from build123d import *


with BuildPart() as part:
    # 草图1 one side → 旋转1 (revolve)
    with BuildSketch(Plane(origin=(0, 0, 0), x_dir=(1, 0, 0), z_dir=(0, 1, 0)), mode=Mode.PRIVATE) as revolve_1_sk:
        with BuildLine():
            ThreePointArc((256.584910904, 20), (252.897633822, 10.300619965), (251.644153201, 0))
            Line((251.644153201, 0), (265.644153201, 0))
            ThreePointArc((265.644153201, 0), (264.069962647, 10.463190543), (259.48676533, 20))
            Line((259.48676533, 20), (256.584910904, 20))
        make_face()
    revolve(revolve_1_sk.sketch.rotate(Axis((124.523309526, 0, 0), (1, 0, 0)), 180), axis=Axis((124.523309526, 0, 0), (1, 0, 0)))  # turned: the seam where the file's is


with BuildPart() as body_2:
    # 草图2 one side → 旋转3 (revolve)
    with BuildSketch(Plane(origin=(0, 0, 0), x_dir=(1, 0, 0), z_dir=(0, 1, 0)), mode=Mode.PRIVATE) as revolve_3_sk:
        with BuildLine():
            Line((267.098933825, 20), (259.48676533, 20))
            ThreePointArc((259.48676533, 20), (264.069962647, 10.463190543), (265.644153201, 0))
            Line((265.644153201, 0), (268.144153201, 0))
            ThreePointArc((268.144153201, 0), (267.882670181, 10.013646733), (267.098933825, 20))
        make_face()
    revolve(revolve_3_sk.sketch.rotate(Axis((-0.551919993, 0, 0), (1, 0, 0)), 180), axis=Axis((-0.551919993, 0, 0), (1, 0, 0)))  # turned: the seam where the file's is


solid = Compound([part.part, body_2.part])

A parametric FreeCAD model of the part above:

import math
import FreeCAD as App
import Part
import Sketcher

doc = App.newDocument("Part")
body = doc.addObject("PartDesign::Body", "Body")

sketch1 = body.newObject("Sketcher::SketchObject", "Sketch")
sketch1.AttachmentSupport = (doc.getObject("XZ_Plane"), [""])
sketch1.MapMode = "FlatFace"
sketch1.addGeometry([
    Part.ArcOfCircle(Part.Circle(App.Vector(294.594153, 0, 0), App.Vector(0, 0, 1), 42.95), math.radians(-180), math.radians(-152.247202)),
    Part.LineSegment(App.Vector(251.644153, 0, 0), App.Vector(265.644153, 0, 0)),
    Part.ArcOfCircle(Part.Circle(App.Vector(230.084153, 0, 0), App.Vector(0, 0, 1), 35.56), math.radians(-34.223995), math.radians(0)),
    Part.LineSegment(App.Vector(259.486765, -20, 0), App.Vector(256.584911, -20, 0)),
], False)
sketch1.addConstraint([
    Sketcher.Constraint("Coincident", 0, 1, 1, 1),
    Sketcher.Constraint("Coincident", 1, 2, 2, 2),
    Sketcher.Constraint("Coincident", 2, 1, 3, 1),
    Sketcher.Constraint("Coincident", 3, 2, 0, 2),
    Sketcher.Constraint("Horizontal", 1),
    Sketcher.Constraint("Horizontal", 3),
    Sketcher.Constraint("PointOnObject", 0, 3, -1),
    Sketcher.Constraint("PointOnObject", 2, 3, -1),
    Sketcher.Constraint("PointOnObject", 0, 1, -1),
    Sketcher.Constraint("DistanceX", 1, 1, 1, 2, 14.0),
    Sketcher.Constraint("Radius", 0, 42.95),
    Sketcher.Constraint("Radius", 2, 35.56),
    Sketcher.Constraint("DistanceY", 2, 1, -1, 1, 20.0),
    Sketcher.Constraint("DistanceX", -1, 1, 3, 2, 256.584911),
])
revolution = body.newObject("PartDesign::Revolution", "Revolution")
revolution.Profile = sketch1
revolution.ReferenceAxis = (sketch1, ["H_Axis"])
revolution.Angle = 360
body2 = doc.addObject("PartDesign::Body", "Body001")

sketch2 = body2.newObject("Sketcher::SketchObject", "Sketch001")
sketch2.AttachmentSupport = (doc.getObject("XZ_Plane001"), [""])
sketch2.MapMode = "FlatFace"
sketch2.addGeometry([
    Part.LineSegment(App.Vector(267.098934, -20, 0), App.Vector(259.486765, -20, 0)),
    Part.ArcOfCircle(Part.Circle(App.Vector(230.084153, 0, 0), App.Vector(0, 0, 1), 35.56), math.radians(-34.223995), math.radians(0)),
    Part.LineSegment(App.Vector(265.644153, 0, 0), App.Vector(268.144153, 0, 0)),
    Part.ArcOfCircle(Part.Circle(App.Vector(76.274153, 0, 0), App.Vector(0, 0, 1), 191.87), math.radians(-5.983223), math.radians(0)),
], False)
sketch2.addConstraint([
    Sketcher.Constraint("Coincident", 0, 2, 1, 1),
    Sketcher.Constraint("Coincident", 1, 2, 2, 1),
    Sketcher.Constraint("Coincident", 2, 2, 3, 2),
    Sketcher.Constraint("Coincident", 3, 1, 0, 1),
    Sketcher.Constraint("Horizontal", 0),
    Sketcher.Constraint("Horizontal", 2),
    Sketcher.Constraint("PointOnObject", 1, 3, -1),
    Sketcher.Constraint("PointOnObject", 3, 3, -1),
    Sketcher.Constraint("PointOnObject", 1, 2, -1),
    Sketcher.Constraint("Radius", 1, 35.56),
    Sketcher.Constraint("Radius", 3, 191.87),
    Sketcher.Constraint("DistanceX", 2, 1, 2, 2, 2.5),
    Sketcher.Constraint("DistanceY", 0, 2, -1, 1, 20.0),
    Sketcher.Constraint("DistanceX", -1, 1, 1, 3, 230.084153),
])
revolution2 = body2.newObject("PartDesign::Revolution", "Revolution001")
revolution2.Profile = sketch2
revolution2.ReferenceAxis = (sketch2, ["H_Axis"])
revolution2.Angle = 360

doc.recompute()
